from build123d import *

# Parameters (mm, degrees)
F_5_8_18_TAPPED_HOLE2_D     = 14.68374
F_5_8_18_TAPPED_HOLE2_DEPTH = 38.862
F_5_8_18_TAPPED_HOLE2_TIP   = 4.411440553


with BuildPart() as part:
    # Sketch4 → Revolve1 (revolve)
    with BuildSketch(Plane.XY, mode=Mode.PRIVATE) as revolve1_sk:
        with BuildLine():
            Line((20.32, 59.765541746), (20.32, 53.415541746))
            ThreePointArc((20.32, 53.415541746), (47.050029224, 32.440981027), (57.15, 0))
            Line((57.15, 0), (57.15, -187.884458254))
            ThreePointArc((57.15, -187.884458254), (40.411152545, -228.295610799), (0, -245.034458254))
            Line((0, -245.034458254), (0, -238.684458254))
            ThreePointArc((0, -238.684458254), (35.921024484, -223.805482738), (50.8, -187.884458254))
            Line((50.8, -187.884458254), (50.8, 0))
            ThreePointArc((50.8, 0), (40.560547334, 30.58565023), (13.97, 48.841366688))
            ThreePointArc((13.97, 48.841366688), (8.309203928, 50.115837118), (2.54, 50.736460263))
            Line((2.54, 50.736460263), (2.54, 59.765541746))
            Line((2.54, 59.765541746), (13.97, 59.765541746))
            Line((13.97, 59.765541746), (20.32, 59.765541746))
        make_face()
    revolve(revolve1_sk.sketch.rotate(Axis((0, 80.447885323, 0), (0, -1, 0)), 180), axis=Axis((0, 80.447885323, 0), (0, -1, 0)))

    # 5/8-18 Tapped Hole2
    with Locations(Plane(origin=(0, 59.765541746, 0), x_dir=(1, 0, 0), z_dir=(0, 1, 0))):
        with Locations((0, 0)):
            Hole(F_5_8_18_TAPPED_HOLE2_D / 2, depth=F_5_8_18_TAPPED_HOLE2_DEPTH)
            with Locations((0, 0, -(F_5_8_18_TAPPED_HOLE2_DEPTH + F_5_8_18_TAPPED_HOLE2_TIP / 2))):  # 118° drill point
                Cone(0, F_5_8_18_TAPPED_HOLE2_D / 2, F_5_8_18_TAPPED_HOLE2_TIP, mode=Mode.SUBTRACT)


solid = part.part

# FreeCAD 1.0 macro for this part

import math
import FreeCAD as App
import Part
import Sketcher
Q = App.Units.Quantity

doc = App.newDocument("Part")
body = doc.addObject("PartDesign::Body", "Body")

# Sketch on XY plane
sketch1 = doc.addObject("Sketcher::SketchObject", "Sketch")
body.addObject(sketch1)
sketch1.AttachmentSupport = (doc.XY_Plane, [""])
sketch1.MapMode = "FlatFace"
sketch1.addGeometry(Part.LineSegment(App.Vector(20.32, 53.415542, 0), App.Vector(20.32, 59.765542, 0)), False)
sketch1.addGeometry(Part.LineSegment(App.Vector(20.32, 59.765542, 0), App.Vector(2.54, 59.765542, 0)), False)
sketch1.addGeometry(Part.LineSegment(App.Vector(2.54, 59.765542, 0), App.Vector(2.54, 50.73646, 0)), False)
sketch1.addGeometry(Part.ArcOfCircle(Part.Circle(App.Vector(0, 0, 0), App.Vector(0, 0, 1), 50.8), math.radians(74.037986), math.radians(87.134016)), False)
sketch1.addGeometry(Part.ArcOfCircle(Part.Circle(App.Vector(0, 0, 0), App.Vector(0, 0, 1), 50.8), math.radians(0), math.radians(74.037986)), False)
sketch1.addGeometry(Part.LineSegment(App.Vector(50.8, 0, 0), App.Vector(50.8, -187.884458, 0)), False)
sketch1.addGeometry(Part.ArcOfCircle(Part.Circle(App.Vector(0, -187.884458, 0), App.Vector(0, 0, 1), 50.8), math.radians(-90), math.radians(0)), False)
sketch1.addGeometry(Part.LineSegment(App.Vector(0, -238.684458, 0), App.Vector(0, -245.034458, 0)), False)
sketch1.addGeometry(Part.ArcOfCircle(Part.Circle(App.Vector(0, -187.884458, 0), App.Vector(0, 0, 1), 57.15), math.radians(-90), math.radians(0)), False)
sketch1.addGeometry(Part.LineSegment(App.Vector(57.15, -187.884458, 0), App.Vector(57.15, 0, 0)), False)
sketch1.addGeometry(Part.ArcOfCircle(Part.Circle(App.Vector(0, 0, 0), App.Vector(0, 0, 1), 57.15), math.radians(0), math.radians(69.172503)), False)
sketch1.addConstraint(Sketcher.Constraint("Coincident", 0, 2, 1, 1))
sketch1.addConstraint(Sketcher.Constraint("Coincident", 1, 2, 2, 1))
sketch1.addConstraint(Sketcher.Constraint("Coincident", 2, 2, 3, 2))
sketch1.addConstraint(Sketcher.Constraint("Tangent", 3, 1, 4, 2))
sketch1.addConstraint(Sketcher.Constraint("Tangent", 4, 1, 5, 1))
sketch1.addConstraint(Sketcher.Constraint("Tangent", 5, 2, 6, 2))
sketch1.addConstraint(Sketcher.Constraint("Coincident", 6, 1, 7, 1))
sketch1.addConstraint(Sketcher.Constraint("Coincident", 7, 2, 8, 1))
sketch1.addConstraint(Sketcher.Constraint("Tangent", 8, 2, 9, 1))
sketch1.addConstraint(Sketcher.Constraint("Tangent", 9, 2, 10, 1))
sketch1.addConstraint(Sketcher.Constraint("Coincident", 10, 2, 0, 1))
sketch1.addConstraint(Sketcher.Constraint("Vertical", 0))
sketch1.addConstraint(Sketcher.Constraint("Horizontal", 1))
sketch1.addConstraint(Sketcher.Constraint("Vertical", 2))
sketch1.addConstraint(Sketcher.Constraint("Vertical", 5))
sketch1.addConstraint(Sketcher.Constraint("Vertical", 7))
sketch1.addConstraint(Sketcher.Constraint("Vertical", 9))
sketch1.addConstraint(Sketcher.Constraint("Coincident", 3, 3, -1, 1))
sketch1.addConstraint(Sketcher.Constraint("Coincident", 10, 3, -1, 1))
sketch1.addConstraint(Sketcher.Constraint("Coincident", 8, 3, 6, 3))
sketch1.addConstraint(Sketcher.Constraint("Equal", 3, 4))
sketch1.addConstraint(Sketcher.Constraint("Equal", 4, 6))
sketch1.addConstraint(Sketcher.Constraint("PointOnObject", 6, 1, -2))
sketch1.addConstraint(Sketcher.Constraint("Equal", 0, 7))
sketch1.addConstraint(Sketcher.Constraint("Radius", 3, Q("2 in")))
sketch1.addConstraint(Sketcher.Constraint("Radius", 8, Q("2.25 in")))
sketch1.addConstraint(Sketcher.Constraint("DistanceX", 1, 2, 1, 1, Q("0.7 in")))
sketch1.addConstraint(Sketcher.Constraint("DistanceX", -1, 1, 0, 2, Q("0.8 in")))
sketch1.addConstraint(Sketcher.Constraint("DistanceX", 3, 1, 9, 2, Q("1.7 in")))
sketch1.addConstraint(Sketcher.Constraint("DistanceY", 6, 3, 0, 2, Q("9.75 in")))
revolution = doc.addObject("PartDesign::Revolution", "Revolution")
body.addObject(revolution)
revolution.Profile = sketch1
revolution.ReferenceAxis = (sketch1, ["V_Axis"])
revolution.Angle = 360

# Sketch on XZ plane
sketch2 = doc.addObject("Sketcher::SketchObject", "Sketch001")
body.addObject(sketch2)
sketch2.AttachmentSupport = (doc.XZ_Plane, [""])
sketch2.MapMode = "FlatFace"
sketch2.AttachmentOffset = App.Placement(App.Vector(0, 0, -59.765542), App.Rotation())
sketch2.addGeometry(Part.Circle(App.Vector(0, 0, 0), App.Vector(0, 0, 1), 7.34187), False)
sketch2.addConstraint(Sketcher.Constraint("Coincident", 0, 3, -1, 1))
sketch2.addConstraint(Sketcher.Constraint("Diameter", 0, Q("0.5781 in")))
doc.recompute()
hole = doc.addObject("PartDesign::Hole", "Hole")
body.addObject(hole)
hole.Profile = sketch2
hole.ThreadType = "None"
hole.Diameter = Q("0.5781 in")
hole.DepthType = "Dimension"
hole.Depth = Q("1.53 in")
hole.DrillPoint = "Angled"
hole.DrillPointAngle = 118
hole.Reversed = True

doc.recompute()
